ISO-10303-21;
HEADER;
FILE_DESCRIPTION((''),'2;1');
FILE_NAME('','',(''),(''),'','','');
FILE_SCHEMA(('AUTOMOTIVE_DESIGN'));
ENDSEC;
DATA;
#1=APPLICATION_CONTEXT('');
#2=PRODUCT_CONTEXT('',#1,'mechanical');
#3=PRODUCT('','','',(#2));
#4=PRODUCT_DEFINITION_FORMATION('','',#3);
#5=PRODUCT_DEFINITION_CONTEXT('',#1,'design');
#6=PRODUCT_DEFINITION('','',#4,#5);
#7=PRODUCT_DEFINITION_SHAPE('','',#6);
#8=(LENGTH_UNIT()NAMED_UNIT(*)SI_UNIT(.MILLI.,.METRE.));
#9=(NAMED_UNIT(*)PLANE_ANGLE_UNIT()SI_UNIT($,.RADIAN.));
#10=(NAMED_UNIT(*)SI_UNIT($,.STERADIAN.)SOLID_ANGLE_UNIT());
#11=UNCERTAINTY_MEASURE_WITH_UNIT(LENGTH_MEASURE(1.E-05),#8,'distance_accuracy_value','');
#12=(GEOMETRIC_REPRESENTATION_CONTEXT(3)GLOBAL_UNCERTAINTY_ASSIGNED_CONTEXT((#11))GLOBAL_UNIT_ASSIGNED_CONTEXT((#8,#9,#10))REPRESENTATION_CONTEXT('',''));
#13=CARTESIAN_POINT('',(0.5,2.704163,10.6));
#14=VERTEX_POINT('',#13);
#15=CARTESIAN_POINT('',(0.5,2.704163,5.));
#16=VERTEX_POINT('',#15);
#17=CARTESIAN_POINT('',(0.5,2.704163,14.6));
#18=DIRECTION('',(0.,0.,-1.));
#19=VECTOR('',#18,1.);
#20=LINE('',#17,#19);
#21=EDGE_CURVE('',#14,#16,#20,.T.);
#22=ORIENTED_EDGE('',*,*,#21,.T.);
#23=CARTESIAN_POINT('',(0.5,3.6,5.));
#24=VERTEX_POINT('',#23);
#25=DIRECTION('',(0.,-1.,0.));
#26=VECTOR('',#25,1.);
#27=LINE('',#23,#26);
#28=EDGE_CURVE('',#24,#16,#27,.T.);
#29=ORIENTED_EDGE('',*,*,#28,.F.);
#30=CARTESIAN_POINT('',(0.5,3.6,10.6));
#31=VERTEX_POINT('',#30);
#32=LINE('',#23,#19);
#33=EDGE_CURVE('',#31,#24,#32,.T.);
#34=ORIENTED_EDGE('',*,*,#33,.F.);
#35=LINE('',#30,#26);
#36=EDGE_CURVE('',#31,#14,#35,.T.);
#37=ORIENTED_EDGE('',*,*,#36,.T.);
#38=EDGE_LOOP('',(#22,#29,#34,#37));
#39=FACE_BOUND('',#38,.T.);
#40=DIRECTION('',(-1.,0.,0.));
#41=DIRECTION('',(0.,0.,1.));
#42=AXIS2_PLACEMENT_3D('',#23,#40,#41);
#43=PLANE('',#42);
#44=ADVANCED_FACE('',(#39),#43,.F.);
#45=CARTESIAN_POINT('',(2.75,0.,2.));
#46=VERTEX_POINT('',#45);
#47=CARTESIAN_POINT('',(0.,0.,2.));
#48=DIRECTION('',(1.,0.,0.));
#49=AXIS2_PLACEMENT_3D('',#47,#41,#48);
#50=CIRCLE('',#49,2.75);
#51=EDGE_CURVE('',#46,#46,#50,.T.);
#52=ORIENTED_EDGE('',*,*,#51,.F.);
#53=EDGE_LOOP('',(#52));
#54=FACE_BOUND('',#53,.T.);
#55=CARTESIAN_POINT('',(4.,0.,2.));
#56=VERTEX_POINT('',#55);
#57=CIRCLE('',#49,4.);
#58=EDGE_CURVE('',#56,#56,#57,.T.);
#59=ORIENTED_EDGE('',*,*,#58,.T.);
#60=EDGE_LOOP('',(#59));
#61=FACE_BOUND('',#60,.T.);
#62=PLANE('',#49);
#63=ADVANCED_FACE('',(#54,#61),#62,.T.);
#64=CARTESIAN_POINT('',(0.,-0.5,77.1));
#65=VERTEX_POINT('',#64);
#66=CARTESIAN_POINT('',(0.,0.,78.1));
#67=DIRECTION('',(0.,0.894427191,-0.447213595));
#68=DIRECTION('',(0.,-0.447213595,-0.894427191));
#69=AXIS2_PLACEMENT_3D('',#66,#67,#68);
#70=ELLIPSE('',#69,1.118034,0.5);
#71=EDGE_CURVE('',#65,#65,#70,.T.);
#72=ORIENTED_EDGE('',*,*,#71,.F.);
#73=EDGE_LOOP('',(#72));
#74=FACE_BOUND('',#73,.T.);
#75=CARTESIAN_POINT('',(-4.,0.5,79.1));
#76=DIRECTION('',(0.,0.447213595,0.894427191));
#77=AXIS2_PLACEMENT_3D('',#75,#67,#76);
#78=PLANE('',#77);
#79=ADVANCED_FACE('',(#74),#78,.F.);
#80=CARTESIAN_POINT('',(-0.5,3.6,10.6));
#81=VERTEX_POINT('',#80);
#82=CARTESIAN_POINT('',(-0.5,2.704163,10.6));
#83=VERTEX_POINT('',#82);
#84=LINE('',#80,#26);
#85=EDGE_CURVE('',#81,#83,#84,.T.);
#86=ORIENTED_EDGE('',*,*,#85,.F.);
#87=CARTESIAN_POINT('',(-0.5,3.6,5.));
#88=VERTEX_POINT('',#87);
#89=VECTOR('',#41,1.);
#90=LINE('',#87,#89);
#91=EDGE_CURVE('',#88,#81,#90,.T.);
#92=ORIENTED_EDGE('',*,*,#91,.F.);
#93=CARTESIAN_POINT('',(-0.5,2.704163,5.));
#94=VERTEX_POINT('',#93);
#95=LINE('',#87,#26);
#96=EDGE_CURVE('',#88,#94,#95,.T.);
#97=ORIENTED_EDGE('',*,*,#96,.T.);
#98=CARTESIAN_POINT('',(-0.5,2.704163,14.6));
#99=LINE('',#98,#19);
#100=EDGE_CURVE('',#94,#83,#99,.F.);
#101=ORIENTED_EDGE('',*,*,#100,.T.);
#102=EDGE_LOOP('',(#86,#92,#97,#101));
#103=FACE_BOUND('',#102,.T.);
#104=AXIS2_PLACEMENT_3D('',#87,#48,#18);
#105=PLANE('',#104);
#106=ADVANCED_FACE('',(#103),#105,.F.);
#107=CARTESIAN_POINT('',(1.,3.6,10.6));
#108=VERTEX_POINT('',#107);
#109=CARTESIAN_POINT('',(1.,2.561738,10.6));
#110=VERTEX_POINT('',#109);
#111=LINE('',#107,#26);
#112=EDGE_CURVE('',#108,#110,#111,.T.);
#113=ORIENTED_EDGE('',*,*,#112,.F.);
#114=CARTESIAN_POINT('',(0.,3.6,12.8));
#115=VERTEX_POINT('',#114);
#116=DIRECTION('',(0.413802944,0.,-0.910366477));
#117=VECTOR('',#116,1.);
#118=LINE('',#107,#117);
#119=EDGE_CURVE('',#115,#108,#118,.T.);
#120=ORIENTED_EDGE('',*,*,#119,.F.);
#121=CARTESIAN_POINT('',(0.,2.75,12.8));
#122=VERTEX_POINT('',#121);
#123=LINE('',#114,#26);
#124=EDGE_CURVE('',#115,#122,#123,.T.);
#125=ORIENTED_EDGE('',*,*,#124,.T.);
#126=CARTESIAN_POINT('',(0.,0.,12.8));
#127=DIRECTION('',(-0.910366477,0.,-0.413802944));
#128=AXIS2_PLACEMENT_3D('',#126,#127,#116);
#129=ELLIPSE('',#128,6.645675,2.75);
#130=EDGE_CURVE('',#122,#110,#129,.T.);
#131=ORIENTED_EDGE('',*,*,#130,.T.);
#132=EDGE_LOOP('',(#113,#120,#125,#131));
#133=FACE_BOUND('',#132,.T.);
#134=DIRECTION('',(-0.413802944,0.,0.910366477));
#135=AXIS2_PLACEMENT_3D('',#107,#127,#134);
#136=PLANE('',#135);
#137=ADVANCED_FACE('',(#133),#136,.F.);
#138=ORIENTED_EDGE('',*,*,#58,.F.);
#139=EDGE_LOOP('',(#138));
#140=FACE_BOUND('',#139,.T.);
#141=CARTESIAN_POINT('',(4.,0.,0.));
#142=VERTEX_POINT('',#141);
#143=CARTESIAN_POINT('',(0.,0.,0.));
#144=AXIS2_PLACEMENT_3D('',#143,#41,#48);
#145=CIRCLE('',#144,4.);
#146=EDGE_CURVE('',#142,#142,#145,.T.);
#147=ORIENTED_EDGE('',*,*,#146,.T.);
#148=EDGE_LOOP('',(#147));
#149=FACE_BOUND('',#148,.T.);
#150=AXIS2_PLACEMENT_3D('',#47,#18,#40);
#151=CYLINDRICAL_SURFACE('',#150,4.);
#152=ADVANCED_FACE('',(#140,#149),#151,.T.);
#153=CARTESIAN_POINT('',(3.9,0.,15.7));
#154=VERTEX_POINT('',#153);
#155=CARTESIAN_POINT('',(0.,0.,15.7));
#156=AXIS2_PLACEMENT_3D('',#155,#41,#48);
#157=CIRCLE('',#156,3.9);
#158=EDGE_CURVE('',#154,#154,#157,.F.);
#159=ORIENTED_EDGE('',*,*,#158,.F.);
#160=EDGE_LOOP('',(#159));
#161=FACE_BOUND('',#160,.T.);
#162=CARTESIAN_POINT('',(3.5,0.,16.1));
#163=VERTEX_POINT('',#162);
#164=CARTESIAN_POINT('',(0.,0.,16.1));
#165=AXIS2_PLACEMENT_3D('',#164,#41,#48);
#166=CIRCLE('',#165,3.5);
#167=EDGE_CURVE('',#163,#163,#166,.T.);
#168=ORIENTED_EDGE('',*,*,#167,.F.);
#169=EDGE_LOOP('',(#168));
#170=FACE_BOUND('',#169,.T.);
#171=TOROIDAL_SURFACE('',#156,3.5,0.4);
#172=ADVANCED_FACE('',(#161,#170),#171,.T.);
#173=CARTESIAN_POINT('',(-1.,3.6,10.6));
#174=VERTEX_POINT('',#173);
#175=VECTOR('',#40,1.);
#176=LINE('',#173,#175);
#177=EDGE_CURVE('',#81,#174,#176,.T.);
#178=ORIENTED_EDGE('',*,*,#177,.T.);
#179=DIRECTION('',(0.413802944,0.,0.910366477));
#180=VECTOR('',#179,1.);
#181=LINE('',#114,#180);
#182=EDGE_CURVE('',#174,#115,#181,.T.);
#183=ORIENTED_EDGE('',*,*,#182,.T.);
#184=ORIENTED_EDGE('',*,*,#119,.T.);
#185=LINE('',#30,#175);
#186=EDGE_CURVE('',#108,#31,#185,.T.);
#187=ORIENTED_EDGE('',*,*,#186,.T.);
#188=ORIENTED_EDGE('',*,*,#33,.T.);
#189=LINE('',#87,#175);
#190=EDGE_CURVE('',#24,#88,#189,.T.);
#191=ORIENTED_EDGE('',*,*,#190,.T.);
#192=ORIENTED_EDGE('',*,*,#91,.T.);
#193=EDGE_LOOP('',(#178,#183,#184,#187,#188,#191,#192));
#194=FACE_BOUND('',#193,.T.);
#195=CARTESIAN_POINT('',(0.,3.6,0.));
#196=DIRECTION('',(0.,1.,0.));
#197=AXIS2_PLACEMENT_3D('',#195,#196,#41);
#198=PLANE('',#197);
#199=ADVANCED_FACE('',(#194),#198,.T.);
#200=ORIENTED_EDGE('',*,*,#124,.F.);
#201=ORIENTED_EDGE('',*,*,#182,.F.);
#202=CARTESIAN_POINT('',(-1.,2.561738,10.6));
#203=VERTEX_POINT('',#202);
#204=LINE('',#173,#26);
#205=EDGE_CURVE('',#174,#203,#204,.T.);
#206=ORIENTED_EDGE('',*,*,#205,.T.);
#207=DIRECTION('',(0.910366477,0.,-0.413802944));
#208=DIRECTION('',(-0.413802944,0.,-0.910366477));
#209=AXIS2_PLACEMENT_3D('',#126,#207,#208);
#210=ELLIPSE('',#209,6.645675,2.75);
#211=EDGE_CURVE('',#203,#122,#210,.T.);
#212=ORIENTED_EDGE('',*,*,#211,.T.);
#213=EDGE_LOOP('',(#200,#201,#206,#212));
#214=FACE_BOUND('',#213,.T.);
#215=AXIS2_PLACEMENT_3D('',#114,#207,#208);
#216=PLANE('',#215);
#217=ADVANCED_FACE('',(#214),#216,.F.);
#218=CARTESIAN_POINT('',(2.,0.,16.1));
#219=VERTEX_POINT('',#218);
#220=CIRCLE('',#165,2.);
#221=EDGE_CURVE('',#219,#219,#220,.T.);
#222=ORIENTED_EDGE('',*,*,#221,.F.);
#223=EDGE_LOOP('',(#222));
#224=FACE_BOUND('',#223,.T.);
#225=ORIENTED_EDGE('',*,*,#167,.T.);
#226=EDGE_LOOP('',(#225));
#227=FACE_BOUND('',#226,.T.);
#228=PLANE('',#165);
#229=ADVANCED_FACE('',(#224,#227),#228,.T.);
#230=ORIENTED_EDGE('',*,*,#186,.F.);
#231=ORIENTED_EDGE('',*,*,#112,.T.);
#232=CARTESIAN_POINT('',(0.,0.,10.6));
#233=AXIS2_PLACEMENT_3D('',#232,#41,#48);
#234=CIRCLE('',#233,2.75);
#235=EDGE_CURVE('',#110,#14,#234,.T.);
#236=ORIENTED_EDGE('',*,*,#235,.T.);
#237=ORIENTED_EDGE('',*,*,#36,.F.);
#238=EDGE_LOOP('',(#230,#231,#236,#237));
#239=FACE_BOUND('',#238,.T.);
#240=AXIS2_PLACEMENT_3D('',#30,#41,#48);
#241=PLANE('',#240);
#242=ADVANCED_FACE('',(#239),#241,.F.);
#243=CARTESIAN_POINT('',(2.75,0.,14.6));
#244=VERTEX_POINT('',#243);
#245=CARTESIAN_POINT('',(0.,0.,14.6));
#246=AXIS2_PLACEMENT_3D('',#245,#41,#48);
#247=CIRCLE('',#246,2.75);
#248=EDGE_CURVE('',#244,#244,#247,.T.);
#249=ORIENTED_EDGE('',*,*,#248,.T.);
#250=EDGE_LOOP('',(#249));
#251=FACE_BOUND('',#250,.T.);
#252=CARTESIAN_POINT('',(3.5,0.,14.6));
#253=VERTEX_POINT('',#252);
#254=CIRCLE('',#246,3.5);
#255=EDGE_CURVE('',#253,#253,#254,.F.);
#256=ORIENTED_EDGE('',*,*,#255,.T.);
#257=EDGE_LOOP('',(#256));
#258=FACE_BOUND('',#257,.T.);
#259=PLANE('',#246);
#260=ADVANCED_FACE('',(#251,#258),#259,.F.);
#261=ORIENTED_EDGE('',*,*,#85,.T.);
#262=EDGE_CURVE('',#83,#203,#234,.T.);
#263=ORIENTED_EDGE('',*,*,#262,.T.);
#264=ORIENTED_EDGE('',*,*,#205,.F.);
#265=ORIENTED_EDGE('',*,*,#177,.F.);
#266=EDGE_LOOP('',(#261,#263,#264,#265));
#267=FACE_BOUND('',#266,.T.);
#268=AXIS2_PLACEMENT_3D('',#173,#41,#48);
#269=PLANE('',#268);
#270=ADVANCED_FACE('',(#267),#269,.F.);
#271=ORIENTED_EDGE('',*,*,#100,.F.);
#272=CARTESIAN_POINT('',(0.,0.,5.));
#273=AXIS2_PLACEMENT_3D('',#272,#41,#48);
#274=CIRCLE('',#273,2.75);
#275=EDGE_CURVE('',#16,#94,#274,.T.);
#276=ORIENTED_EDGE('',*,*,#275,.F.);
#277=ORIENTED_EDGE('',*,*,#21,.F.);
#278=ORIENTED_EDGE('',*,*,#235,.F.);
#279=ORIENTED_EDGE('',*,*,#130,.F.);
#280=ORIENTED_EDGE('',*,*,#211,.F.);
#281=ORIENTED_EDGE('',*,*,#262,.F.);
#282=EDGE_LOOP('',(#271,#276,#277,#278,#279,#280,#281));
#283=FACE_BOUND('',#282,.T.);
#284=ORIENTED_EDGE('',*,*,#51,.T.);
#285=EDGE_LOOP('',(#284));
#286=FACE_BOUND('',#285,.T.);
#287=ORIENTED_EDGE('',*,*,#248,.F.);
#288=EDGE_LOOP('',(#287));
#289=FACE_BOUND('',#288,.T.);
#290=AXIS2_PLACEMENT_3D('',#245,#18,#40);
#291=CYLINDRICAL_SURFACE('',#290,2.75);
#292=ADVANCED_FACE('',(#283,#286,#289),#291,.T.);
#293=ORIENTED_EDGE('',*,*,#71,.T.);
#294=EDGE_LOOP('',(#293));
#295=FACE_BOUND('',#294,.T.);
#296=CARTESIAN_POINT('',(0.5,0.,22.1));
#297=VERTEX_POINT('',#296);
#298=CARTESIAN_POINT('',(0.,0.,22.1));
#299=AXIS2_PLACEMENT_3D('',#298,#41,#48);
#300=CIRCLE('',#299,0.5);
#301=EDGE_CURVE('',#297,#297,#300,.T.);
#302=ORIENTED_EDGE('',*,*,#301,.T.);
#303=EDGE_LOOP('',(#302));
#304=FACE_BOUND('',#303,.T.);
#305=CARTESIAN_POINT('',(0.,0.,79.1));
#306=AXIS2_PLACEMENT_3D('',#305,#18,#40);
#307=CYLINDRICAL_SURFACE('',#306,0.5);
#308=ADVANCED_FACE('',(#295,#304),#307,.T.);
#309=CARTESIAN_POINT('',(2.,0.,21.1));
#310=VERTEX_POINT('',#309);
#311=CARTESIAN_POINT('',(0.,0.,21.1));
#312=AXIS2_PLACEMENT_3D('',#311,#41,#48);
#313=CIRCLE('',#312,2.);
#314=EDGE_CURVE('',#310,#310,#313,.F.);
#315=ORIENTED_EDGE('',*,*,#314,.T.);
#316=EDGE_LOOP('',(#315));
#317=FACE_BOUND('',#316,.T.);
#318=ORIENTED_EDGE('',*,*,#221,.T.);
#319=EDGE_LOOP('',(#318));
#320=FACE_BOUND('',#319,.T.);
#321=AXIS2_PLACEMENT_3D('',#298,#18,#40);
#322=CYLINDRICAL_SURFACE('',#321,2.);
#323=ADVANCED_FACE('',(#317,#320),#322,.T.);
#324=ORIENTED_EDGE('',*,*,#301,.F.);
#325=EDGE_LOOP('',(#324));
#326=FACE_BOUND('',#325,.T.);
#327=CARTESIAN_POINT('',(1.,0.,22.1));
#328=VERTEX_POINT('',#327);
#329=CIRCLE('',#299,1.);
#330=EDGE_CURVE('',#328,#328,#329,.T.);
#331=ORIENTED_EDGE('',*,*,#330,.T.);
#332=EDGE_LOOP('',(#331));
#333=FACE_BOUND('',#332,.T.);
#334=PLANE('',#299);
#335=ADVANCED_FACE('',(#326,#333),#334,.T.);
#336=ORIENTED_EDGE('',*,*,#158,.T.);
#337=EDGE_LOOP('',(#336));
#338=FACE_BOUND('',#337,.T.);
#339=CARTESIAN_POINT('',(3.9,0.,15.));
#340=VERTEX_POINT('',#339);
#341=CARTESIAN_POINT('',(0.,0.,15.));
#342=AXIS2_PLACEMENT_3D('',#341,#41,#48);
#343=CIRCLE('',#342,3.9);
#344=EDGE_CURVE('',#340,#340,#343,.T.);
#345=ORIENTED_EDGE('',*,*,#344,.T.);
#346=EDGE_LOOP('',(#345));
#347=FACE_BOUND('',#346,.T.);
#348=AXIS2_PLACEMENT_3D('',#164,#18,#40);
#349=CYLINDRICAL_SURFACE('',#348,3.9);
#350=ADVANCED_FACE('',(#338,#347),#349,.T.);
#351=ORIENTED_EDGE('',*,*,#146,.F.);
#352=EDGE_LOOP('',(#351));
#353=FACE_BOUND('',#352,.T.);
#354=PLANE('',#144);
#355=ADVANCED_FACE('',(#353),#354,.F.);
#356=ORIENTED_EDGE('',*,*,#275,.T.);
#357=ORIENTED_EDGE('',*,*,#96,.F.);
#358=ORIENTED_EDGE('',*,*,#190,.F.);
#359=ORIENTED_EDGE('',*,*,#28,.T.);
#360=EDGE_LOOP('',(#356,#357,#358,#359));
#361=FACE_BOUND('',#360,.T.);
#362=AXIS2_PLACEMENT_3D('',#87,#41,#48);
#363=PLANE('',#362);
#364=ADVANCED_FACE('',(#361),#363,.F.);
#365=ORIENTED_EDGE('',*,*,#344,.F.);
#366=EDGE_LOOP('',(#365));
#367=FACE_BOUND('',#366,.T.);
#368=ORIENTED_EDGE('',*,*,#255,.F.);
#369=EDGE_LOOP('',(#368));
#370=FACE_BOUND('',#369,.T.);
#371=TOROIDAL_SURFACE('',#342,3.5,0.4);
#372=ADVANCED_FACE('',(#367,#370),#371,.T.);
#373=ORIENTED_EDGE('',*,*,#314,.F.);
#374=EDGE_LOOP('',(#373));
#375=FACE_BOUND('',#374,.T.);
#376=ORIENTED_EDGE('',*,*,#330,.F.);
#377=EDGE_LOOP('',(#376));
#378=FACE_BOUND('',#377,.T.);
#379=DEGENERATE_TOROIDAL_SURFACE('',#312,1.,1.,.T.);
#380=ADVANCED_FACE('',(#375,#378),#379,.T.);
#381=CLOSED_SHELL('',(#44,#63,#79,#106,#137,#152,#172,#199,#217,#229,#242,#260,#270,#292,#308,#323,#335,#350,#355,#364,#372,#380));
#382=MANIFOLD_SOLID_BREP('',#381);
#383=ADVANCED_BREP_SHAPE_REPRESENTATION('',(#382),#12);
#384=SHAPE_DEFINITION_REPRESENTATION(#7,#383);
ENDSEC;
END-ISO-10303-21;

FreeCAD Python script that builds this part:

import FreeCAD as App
import Part
import Sketcher

V = App.Vector


def edges_at(feature, points):
    """Names of the edges that pass closest to the given points."""
    edges = feature.Shape.Edges
    near = lambda p: min(range(len(edges)), key=lambda i: edges[i].distToShape(Part.Vertex(*p))[0])
    return sorted({f"Edge{near(p) + 1}" for p in points})

doc = App.newDocument("Part")
body = doc.addObject("PartDesign::Body", "Body")

# Sketch on XY plane
sketch1 = doc.addObject("Sketcher::SketchObject", "Sketch")
body.addObject(sketch1)
sketch1.AttachmentSupport = (doc.XY_Plane, [""])
sketch1.MapMode = "FlatFace"
sketch1.addGeometry(Part.Circle(V(0, 0, 0), V(0, 0, 1), 4), False)
sketch1.addConstraint([
    Sketcher.Constraint("Coincident", 0, 3, -1, 1),
    Sketcher.Constraint("Diameter", 0, 8.0),
])
pad1 = doc.addObject("PartDesign::Pad", "Pad")
body.addObject(pad1)
pad1.Profile = sketch1
pad1.Length = 2

# Sketch on XY plane
sketch2 = doc.addObject("Sketcher::SketchObject", "Sketch001")
body.addObject(sketch2)
sketch2.AttachmentSupport = (doc.XY_Plane, [""])
sketch2.MapMode = "FlatFace"
sketch2.AttachmentOffset = App.Placement(V(0, 0, 2), App.Rotation())
sketch2.addGeometry(Part.Circle(V(0, 0, 0), V(0, 0, 1), 2.8), False)
sketch2.addConstraint([
    Sketcher.Constraint("Coincident", 0, 3, -1, 1),
    Sketcher.Constraint("Diameter", 0, 5.5),
])
pad2 = doc.addObject("PartDesign::Pad", "Pad001")
body.addObject(pad2)
pad2.Profile = sketch2
pad2.Length = 12.6

# Sketch on XY plane
sketch3 = doc.addObject("Sketcher::SketchObject", "Sketch002")
body.addObject(sketch3)
sketch3.AttachmentSupport = (doc.XY_Plane, [""])
sketch3.MapMode = "FlatFace"
sketch3.AttachmentOffset = App.Placement(V(0, 0, 14.6), App.Rotation())
sketch3.addGeometry(Part.Circle(V(0, 0, 0), V(0, 0, 1), 3.9), False)
sketch3.addConstraint([
    Sketcher.Constraint("Coincident", 0, 3, -1, 1),
    Sketcher.Constraint("Diameter", 0, 7.8),
])
pad3 = doc.addObject("PartDesign::Pad", "Pad002")
body.addObject(pad3)
pad3.Profile = sketch3
pad3.Length = 1.5

# Sketch on XY plane
sketch4 = doc.addObject("Sketcher::SketchObject", "Sketch003")
body.addObject(sketch4)
sketch4.AttachmentSupport = (doc.XY_Plane, [""])
sketch4.MapMode = "FlatFace"
sketch4.AttachmentOffset = App.Placement(V(0, 0, 16.1), App.Rotation())
sketch4.addGeometry(Part.Circle(V(0, 0, 0), V(0, 0, 1), 2), False)
sketch4.addConstraint([
    Sketcher.Constraint("Coincident", 0, 3, -1, 1),
    Sketcher.Constraint("Diameter", 0, 4.0),
])
pad4 = doc.addObject("PartDesign::Pad", "Pad003")
body.addObject(pad4)
pad4.Profile = sketch4
pad4.Length = 6
doc.recompute()

fillet = doc.addObject("PartDesign::Fillet", "Fillet")
body.addObject(fillet)
fillet.Base = (pad4, edges_at(pad4, [(-2, 0, 22.1)]))
fillet.Radius = 1

# Sketch on XZ plane
sketch5 = doc.addObject("Sketcher::SketchObject", "Sketch004")
body.addObject(sketch5)
sketch5.AttachmentSupport = (doc.XZ_Plane, [""])
sketch5.MapMode = "FlatFace"
sketch5.addGeometry([
    Part.LineSegment(V(0.5, 5, 0), V(-0.5, 5, 0)),  # 0
    Part.LineSegment(V(-0.5, 5, 0), V(-0.5, 10.6, 0)),  # 1
    Part.LineSegment(V(-0.5, 10.6, 0), V(-1, 10.6, 0)),  # 2
    Part.LineSegment(V(-1, 10.6, 0), V(0, 12.8, 0)),  # 3
    Part.LineSegment(V(0, 12.8, 0), V(1, 10.6, 0)),  # 4
    Part.LineSegment(V(1, 10.6, 0), V(0.5, 10.6, 0)),  # 5
    Part.LineSegment(V(0.5, 10.6, 0), V(0.5, 5, 0)),  # 6
], False)
sketch5.addConstraint([
    Sketcher.Constraint("Coincident", 0, 2, 1, 1),
    Sketcher.Constraint("Coincident", 1, 2, 2, 1),
    Sketcher.Constraint("Coincident", 2, 2, 3, 1),
    Sketcher.Constraint("Coincident", 3, 2, 4, 1),
    Sketcher.Constraint("Coincident", 4, 2, 5, 1),
    Sketcher.Constraint("Coincident", 5, 2, 6, 1),
    Sketcher.Constraint("Coincident", 6, 2, 0, 1),
    Sketcher.Constraint("Horizontal", 0),
    Sketcher.Constraint("Vertical", 1),
    Sketcher.Constraint("Horizontal", 2),
    Sketcher.Constraint("Horizontal", 5),
    Sketcher.Constraint("Vertical", 6),
    Sketcher.Constraint("Symmetric", 2, 2, 4, 2, -2),
    Sketcher.Constraint("PointOnObject", 3, 2, -2),
    Sketcher.Constraint("Equal", 2, 5),
    Sketcher.Constraint("DistanceX", 0, 2, 0, 1, 1.0),
    Sketcher.Constraint("DistanceX", 2, 2, 2, 1, 0.5),
    Sketcher.Constraint("DistanceY", 1, 1, 1, 2, 5.6),
    Sketcher.Constraint("DistanceY", -1, 1, 0, 2, 5.0),
    Sketcher.Constraint("DistanceY", -1, 1, 3, 2, 12.8),
])
pad5 = doc.addObject("PartDesign::Pad", "Pad004")
body.addObject(pad5)
pad5.Profile = sketch5
pad5.Length = 3.6
pad5.Reversed = True

# Sketch on XY plane
sketch6 = doc.addObject("Sketcher::SketchObject", "Sketch005")
body.addObject(sketch6)
sketch6.AttachmentSupport = (doc.XY_Plane, [""])
sketch6.MapMode = "FlatFace"
sketch6.AttachmentOffset = App.Placement(V(0, 0, 22.1), App.Rotation())
sketch6.addGeometry(Part.Circle(V(0, 0, 0), V(0, 0, 1), 0.5), False)
sketch6.addConstraint([
    Sketcher.Constraint("Coincident", 0, 3, -1, 1),
    Sketcher.Constraint("Diameter", 0, 1.0),
])
pad6 = doc.addObject("PartDesign::Pad", "Pad005")
body.addObject(pad6)
pad6.Profile = sketch6
pad6.Length = 57

# Sketch on YZ plane
sketch7 = doc.addObject("Sketcher::SketchObject", "Sketch006")
body.addObject(sketch7)
sketch7.AttachmentSupport = (doc.YZ_Plane, [""])
sketch7.MapMode = "FlatFace"
sketch7.addGeometry([
    Part.LineSegment(V(-0.5, 77.1, 0), V(0.5, 79.1, 0)),
    Part.LineSegment(V(0.5, 79.1, 0), V(-0.5, 79.1, 0)),
    Part.LineSegment(V(-0.5, 79.1, 0), V(-0.5, 77.1, 0)),
], False)
sketch7.addConstraint([
    Sketcher.Constraint("Coincident", 0, 2, 1, 1),
    Sketcher.Constraint("Coincident", 1, 2, 2, 1),
    Sketcher.Constraint("Coincident", 2, 2, 0, 1),
    Sketcher.Constraint("Horizontal", 1),
    Sketcher.Constraint("Vertical", 2),
    Sketcher.Constraint("DistanceX", 1, 2, 1, 1, 1.0),
    Sketcher.Constraint("DistanceY", 2, 2, 2, 1, 2.0),
    Sketcher.Constraint("DistanceX", -1, 1, 0, 2, 0.5),
    Sketcher.Constraint("DistanceY", -1, 1, 0, 2, 79.1),
])
pocket1 = doc.addObject("PartDesign::Pocket", "Pocket")
body.addObject(pocket1)
pocket1.Profile = sketch7
pocket1.Type = "ThroughAll"
pocket1.Midplane = True
doc.recompute()

fillet2 = doc.addObject("PartDesign::Fillet", "Fillet001")
body.addObject(fillet2)
fillet2.Base = (pocket1, edges_at(pocket1, [(-3.9, 0, 14.6), (-3.9, 0, 16.1)]))
fillet2.Radius = 0.4

doc.recompute()
